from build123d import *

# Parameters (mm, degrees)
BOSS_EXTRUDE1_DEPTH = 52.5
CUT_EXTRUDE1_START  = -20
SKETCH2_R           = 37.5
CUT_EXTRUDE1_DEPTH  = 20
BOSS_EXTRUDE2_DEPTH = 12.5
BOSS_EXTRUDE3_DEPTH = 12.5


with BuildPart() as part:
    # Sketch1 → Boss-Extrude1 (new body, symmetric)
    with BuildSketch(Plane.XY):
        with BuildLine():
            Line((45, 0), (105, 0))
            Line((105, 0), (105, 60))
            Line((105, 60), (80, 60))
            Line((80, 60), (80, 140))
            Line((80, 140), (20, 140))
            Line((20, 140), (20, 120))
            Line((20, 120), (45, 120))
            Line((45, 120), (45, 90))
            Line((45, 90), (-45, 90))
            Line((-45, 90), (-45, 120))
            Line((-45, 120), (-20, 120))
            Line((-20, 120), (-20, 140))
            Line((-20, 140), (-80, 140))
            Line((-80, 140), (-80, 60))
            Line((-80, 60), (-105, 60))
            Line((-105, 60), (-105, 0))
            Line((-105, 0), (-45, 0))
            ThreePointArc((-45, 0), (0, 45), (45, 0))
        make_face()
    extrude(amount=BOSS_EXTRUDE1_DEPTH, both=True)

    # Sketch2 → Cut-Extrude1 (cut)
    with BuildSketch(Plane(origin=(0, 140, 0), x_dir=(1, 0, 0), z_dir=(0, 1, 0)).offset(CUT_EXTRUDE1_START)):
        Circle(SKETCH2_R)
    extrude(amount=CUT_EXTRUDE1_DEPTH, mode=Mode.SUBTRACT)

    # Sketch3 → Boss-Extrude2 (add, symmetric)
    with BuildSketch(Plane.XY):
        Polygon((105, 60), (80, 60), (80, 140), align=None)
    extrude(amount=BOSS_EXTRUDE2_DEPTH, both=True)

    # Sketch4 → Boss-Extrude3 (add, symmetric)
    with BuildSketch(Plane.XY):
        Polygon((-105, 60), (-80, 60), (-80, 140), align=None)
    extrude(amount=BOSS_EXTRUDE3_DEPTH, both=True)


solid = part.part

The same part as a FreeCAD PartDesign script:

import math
import FreeCAD as App
import Part
import Sketcher
Q = App.Units.Quantity


def add_polygon(sketch, points):
    """Adds a closed chain of lines whose ends are joined by coincident constraints."""
    first, n = sketch.GeometryCount, len(points)
    for a, b in zip(points, points[1:] + points[:1]):
        sketch.addGeometry(Part.LineSegment(App.Vector(*a, 0), App.Vector(*b, 0)), False)
    for i in range(n):
        sketch.addConstraint(Sketcher.Constraint("Coincident", first + i, 2, first + (i + 1) % n, 1))

doc = App.newDocument("Part")
body = doc.addObject("PartDesign::Body", "Body")

# Sketch on XY plane
sketch1 = body.newObject("Sketcher::SketchObject", "Sketch")
sketch1.AttachmentSupport = (doc.getObject("XY_Plane"), [""])
sketch1.MapMode = "FlatFace"
sketch1.addGeometry([
    Part.LineSegment(App.Vector(45, 0, 0), App.Vector(105, 0, 0)),  # 0
    Part.LineSegment(App.Vector(105, 0, 0), App.Vector(105, 60, 0)),  # 1
    Part.LineSegment(App.Vector(105, 60, 0), App.Vector(80, 60, 0)),  # 2
    Part.LineSegment(App.Vector(80, 60, 0), App.Vector(80, 140, 0)),  # 3
    Part.LineSegment(App.Vector(80, 140, 0), App.Vector(20, 140, 0)),  # 4
    Part.LineSegment(App.Vector(20, 140, 0), App.Vector(20, 120, 0)),  # 5
    Part.LineSegment(App.Vector(20, 120, 0), App.Vector(45, 120, 0)),  # 6
    Part.LineSegment(App.Vector(45, 120, 0), App.Vector(45, 90, 0)),  # 7
    Part.LineSegment(App.Vector(45, 90, 0), App.Vector(-45, 90, 0)),  # 8
    Part.LineSegment(App.Vector(-45, 90, 0), App.Vector(-45, 120, 0)),  # 9
    Part.LineSegment(App.Vector(-45, 120, 0), App.Vector(-20, 120, 0)),  # 10
    Part.LineSegment(App.Vector(-20, 120, 0), App.Vector(-20, 140, 0)),  # 11
    Part.LineSegment(App.Vector(-20, 140, 0), App.Vector(-80, 140, 0)),  # 12
    Part.LineSegment(App.Vector(-80, 140, 0), App.Vector(-80, 60, 0)),  # 13
    Part.LineSegment(App.Vector(-80, 60, 0), App.Vector(-105, 60, 0)),  # 14
    Part.LineSegment(App.Vector(-105, 60, 0), App.Vector(-105, 0, 0)),  # 15
    Part.LineSegment(App.Vector(-105, 0, 0), App.Vector(-45, 0, 0)),  # 16
    Part.ArcOfCircle(Part.Circle(App.Vector(0, 0, 0), App.Vector(0, 0, 1), 45), math.radians(0), math.radians(180)),  # 17
], False)
sketch1.addConstraint([
    Sketcher.Constraint("Coincident", 0, 2, 1, 1),
    Sketcher.Constraint("Coincident", 1, 2, 2, 1),
    Sketcher.Constraint("Coincident", 2, 2, 3, 1),
    Sketcher.Constraint("Coincident", 3, 2, 4, 1),
    Sketcher.Constraint("Coincident", 4, 2, 5, 1),
    Sketcher.Constraint("Coincident", 5, 2, 6, 1),
    Sketcher.Constraint("Coincident", 6, 2, 7, 1),
    Sketcher.Constraint("Coincident", 7, 2, 8, 1),
    Sketcher.Constraint("Coincident", 8, 2, 9, 1),
    Sketcher.Constraint("Coincident", 9, 2, 10, 1),
    Sketcher.Constraint("Coincident", 10, 2, 11, 1),
    Sketcher.Constraint("Coincident", 11, 2, 12, 1),
    Sketcher.Constraint("Coincident", 12, 2, 13, 1),
    Sketcher.Constraint("Coincident", 13, 2, 14, 1),
    Sketcher.Constraint("Coincident", 14, 2, 15, 1),
    Sketcher.Constraint("Coincident", 15, 2, 16, 1),
    Sketcher.Constraint("Coincident", 16, 2, 17, 2),
    Sketcher.Constraint("Coincident", 17, 1, 0, 1),
    Sketcher.Constraint("Horizontal", 0),
    Sketcher.Constraint("Vertical", 1),
    Sketcher.Constraint("Horizontal", 2),
    Sketcher.Constraint("Vertical", 3),
    Sketcher.Constraint("Horizontal", 4),
    Sketcher.Constraint("Vertical", 5),
    Sketcher.Constraint("Horizontal", 6),
    Sketcher.Constraint("Vertical", 7),
    Sketcher.Constraint("Horizontal", 8),
    Sketcher.Constraint("Vertical", 9),
    Sketcher.Constraint("Horizontal", 10),
    Sketcher.Constraint("Vertical", 11),
    Sketcher.Constraint("Horizontal", 12),
    Sketcher.Constraint("Vertical", 13),
    Sketcher.Constraint("Horizontal", 14),
    Sketcher.Constraint("Vertical", 15),
    Sketcher.Constraint("Horizontal", 16),
    Sketcher.Constraint("Coincident", 17, 3, -1, 1),
    Sketcher.Constraint("Symmetric", 0, 2, 15, 2, -1, 1),
    Sketcher.Constraint("Symmetric", 6, 2, 9, 2, -2),
    Sketcher.Constraint("Symmetric", 4, 2, 11, 2, -2),
    Sketcher.Constraint("Symmetric", 2, 2, 13, 2, -2),
    Sketcher.Constraint("PointOnObject", 0, 2, -1),
    Sketcher.Constraint("Vertical", 9, 2, 16, 2),
    Sketcher.Constraint("Equal", 0, 4),
    Sketcher.Constraint("Equal", 16, 1),
    Sketcher.Constraint("Radius", 17, Q("45 mm")),
    Sketcher.Constraint("DistanceX", 0, 1, 0, 2, Q("60 mm")),
    Sketcher.Constraint("DistanceX", 2, 2, 2, 1, Q("25 mm")),
    Sketcher.Constraint("DistanceY", 3, 1, 3, 2, Q("80 mm")),
    Sketcher.Constraint("DistanceY", 5, 2, 5, 1, Q("20 mm")),
    Sketcher.Constraint("DistanceY", 7, 2, 7, 1, Q("30 mm")),
])
pad1 = body.newObject("PartDesign::Pad", "Pad")
pad1.Profile = sketch1
pad1.Length = 105
pad1.Midplane = True

# Sketch on XZ plane
sketch2 = body.newObject("Sketcher::SketchObject", "Sketch001")
sketch2.AttachmentSupport = (doc.getObject("XZ_Plane"), [""])
sketch2.MapMode = "FlatFace"
sketch2.AttachmentOffset = App.Placement(App.Vector(0, 0, -120), App.Rotation())
sketch2.addGeometry(Part.Circle(App.Vector(0, 0, 0), App.Vector(0, 0, 1), 38), False)
sketch2.addConstraint([
    Sketcher.Constraint("Coincident", 0, 3, -1, 1),
    Sketcher.Constraint("Diameter", 0, Q("75 mm")),
])
pocket1 = body.newObject("PartDesign::Pocket", "Pocket")
pocket1.Profile = sketch2
pocket1.Length = 20

# Sketch on XY plane
sketch3 = body.newObject("Sketcher::SketchObject", "Sketch002")
sketch3.AttachmentSupport = (doc.getObject("XY_Plane"), [""])
sketch3.MapMode = "FlatFace"
add_polygon(sketch3, [(80, 60), (105, 60), (80, 140)])  # lines 0-2
sketch3.addConstraint([
    Sketcher.Constraint("Horizontal", 0),
    Sketcher.Constraint("Vertical", 2),
    Sketcher.Constraint("DistanceX", 0, 1, 0, 2, Q("25 mm")),
    Sketcher.Constraint("DistanceY", 2, 2, 2, 1, Q("80 mm")),
    Sketcher.Constraint("DistanceX", -1, 1, 0, 2, Q("105 mm")),
    Sketcher.Constraint("DistanceY", -1, 1, 0, 2, Q("60 mm")),
])
pad2 = body.newObject("PartDesign::Pad", "Pad001")
pad2.Profile = sketch3
pad2.Length = 25
pad2.Midplane = True

# Sketch on XY plane
sketch4 = body.newObject("Sketcher::SketchObject", "Sketch003")
sketch4.AttachmentSupport = (doc.getObject("XY_Plane"), [""])
sketch4.MapMode = "FlatFace"
add_polygon(sketch4, [(-105, 60), (-80, 60), (-80, 140)])  # lines 0-2
sketch4.addConstraint([
    Sketcher.Constraint("Horizontal", 0),
    Sketcher.Constraint("Vertical", 1),
    Sketcher.Constraint("DistanceX", 0, 1, 0, 2, Q("25 mm")),
    Sketcher.Constraint("DistanceY", 1, 1, 1, 2, Q("80 mm")),
    Sketcher.Constraint("DistanceX", 0, 2, -1, 1, Q("80 mm")),
    Sketcher.Constraint("DistanceY", -1, 1, 0, 2, Q("60 mm")),
])
pad3 = body.newObject("PartDesign::Pad", "Pad002")
pad3.Profile = sketch4
pad3.Length = 25
pad3.Midplane = True

doc.recompute()
